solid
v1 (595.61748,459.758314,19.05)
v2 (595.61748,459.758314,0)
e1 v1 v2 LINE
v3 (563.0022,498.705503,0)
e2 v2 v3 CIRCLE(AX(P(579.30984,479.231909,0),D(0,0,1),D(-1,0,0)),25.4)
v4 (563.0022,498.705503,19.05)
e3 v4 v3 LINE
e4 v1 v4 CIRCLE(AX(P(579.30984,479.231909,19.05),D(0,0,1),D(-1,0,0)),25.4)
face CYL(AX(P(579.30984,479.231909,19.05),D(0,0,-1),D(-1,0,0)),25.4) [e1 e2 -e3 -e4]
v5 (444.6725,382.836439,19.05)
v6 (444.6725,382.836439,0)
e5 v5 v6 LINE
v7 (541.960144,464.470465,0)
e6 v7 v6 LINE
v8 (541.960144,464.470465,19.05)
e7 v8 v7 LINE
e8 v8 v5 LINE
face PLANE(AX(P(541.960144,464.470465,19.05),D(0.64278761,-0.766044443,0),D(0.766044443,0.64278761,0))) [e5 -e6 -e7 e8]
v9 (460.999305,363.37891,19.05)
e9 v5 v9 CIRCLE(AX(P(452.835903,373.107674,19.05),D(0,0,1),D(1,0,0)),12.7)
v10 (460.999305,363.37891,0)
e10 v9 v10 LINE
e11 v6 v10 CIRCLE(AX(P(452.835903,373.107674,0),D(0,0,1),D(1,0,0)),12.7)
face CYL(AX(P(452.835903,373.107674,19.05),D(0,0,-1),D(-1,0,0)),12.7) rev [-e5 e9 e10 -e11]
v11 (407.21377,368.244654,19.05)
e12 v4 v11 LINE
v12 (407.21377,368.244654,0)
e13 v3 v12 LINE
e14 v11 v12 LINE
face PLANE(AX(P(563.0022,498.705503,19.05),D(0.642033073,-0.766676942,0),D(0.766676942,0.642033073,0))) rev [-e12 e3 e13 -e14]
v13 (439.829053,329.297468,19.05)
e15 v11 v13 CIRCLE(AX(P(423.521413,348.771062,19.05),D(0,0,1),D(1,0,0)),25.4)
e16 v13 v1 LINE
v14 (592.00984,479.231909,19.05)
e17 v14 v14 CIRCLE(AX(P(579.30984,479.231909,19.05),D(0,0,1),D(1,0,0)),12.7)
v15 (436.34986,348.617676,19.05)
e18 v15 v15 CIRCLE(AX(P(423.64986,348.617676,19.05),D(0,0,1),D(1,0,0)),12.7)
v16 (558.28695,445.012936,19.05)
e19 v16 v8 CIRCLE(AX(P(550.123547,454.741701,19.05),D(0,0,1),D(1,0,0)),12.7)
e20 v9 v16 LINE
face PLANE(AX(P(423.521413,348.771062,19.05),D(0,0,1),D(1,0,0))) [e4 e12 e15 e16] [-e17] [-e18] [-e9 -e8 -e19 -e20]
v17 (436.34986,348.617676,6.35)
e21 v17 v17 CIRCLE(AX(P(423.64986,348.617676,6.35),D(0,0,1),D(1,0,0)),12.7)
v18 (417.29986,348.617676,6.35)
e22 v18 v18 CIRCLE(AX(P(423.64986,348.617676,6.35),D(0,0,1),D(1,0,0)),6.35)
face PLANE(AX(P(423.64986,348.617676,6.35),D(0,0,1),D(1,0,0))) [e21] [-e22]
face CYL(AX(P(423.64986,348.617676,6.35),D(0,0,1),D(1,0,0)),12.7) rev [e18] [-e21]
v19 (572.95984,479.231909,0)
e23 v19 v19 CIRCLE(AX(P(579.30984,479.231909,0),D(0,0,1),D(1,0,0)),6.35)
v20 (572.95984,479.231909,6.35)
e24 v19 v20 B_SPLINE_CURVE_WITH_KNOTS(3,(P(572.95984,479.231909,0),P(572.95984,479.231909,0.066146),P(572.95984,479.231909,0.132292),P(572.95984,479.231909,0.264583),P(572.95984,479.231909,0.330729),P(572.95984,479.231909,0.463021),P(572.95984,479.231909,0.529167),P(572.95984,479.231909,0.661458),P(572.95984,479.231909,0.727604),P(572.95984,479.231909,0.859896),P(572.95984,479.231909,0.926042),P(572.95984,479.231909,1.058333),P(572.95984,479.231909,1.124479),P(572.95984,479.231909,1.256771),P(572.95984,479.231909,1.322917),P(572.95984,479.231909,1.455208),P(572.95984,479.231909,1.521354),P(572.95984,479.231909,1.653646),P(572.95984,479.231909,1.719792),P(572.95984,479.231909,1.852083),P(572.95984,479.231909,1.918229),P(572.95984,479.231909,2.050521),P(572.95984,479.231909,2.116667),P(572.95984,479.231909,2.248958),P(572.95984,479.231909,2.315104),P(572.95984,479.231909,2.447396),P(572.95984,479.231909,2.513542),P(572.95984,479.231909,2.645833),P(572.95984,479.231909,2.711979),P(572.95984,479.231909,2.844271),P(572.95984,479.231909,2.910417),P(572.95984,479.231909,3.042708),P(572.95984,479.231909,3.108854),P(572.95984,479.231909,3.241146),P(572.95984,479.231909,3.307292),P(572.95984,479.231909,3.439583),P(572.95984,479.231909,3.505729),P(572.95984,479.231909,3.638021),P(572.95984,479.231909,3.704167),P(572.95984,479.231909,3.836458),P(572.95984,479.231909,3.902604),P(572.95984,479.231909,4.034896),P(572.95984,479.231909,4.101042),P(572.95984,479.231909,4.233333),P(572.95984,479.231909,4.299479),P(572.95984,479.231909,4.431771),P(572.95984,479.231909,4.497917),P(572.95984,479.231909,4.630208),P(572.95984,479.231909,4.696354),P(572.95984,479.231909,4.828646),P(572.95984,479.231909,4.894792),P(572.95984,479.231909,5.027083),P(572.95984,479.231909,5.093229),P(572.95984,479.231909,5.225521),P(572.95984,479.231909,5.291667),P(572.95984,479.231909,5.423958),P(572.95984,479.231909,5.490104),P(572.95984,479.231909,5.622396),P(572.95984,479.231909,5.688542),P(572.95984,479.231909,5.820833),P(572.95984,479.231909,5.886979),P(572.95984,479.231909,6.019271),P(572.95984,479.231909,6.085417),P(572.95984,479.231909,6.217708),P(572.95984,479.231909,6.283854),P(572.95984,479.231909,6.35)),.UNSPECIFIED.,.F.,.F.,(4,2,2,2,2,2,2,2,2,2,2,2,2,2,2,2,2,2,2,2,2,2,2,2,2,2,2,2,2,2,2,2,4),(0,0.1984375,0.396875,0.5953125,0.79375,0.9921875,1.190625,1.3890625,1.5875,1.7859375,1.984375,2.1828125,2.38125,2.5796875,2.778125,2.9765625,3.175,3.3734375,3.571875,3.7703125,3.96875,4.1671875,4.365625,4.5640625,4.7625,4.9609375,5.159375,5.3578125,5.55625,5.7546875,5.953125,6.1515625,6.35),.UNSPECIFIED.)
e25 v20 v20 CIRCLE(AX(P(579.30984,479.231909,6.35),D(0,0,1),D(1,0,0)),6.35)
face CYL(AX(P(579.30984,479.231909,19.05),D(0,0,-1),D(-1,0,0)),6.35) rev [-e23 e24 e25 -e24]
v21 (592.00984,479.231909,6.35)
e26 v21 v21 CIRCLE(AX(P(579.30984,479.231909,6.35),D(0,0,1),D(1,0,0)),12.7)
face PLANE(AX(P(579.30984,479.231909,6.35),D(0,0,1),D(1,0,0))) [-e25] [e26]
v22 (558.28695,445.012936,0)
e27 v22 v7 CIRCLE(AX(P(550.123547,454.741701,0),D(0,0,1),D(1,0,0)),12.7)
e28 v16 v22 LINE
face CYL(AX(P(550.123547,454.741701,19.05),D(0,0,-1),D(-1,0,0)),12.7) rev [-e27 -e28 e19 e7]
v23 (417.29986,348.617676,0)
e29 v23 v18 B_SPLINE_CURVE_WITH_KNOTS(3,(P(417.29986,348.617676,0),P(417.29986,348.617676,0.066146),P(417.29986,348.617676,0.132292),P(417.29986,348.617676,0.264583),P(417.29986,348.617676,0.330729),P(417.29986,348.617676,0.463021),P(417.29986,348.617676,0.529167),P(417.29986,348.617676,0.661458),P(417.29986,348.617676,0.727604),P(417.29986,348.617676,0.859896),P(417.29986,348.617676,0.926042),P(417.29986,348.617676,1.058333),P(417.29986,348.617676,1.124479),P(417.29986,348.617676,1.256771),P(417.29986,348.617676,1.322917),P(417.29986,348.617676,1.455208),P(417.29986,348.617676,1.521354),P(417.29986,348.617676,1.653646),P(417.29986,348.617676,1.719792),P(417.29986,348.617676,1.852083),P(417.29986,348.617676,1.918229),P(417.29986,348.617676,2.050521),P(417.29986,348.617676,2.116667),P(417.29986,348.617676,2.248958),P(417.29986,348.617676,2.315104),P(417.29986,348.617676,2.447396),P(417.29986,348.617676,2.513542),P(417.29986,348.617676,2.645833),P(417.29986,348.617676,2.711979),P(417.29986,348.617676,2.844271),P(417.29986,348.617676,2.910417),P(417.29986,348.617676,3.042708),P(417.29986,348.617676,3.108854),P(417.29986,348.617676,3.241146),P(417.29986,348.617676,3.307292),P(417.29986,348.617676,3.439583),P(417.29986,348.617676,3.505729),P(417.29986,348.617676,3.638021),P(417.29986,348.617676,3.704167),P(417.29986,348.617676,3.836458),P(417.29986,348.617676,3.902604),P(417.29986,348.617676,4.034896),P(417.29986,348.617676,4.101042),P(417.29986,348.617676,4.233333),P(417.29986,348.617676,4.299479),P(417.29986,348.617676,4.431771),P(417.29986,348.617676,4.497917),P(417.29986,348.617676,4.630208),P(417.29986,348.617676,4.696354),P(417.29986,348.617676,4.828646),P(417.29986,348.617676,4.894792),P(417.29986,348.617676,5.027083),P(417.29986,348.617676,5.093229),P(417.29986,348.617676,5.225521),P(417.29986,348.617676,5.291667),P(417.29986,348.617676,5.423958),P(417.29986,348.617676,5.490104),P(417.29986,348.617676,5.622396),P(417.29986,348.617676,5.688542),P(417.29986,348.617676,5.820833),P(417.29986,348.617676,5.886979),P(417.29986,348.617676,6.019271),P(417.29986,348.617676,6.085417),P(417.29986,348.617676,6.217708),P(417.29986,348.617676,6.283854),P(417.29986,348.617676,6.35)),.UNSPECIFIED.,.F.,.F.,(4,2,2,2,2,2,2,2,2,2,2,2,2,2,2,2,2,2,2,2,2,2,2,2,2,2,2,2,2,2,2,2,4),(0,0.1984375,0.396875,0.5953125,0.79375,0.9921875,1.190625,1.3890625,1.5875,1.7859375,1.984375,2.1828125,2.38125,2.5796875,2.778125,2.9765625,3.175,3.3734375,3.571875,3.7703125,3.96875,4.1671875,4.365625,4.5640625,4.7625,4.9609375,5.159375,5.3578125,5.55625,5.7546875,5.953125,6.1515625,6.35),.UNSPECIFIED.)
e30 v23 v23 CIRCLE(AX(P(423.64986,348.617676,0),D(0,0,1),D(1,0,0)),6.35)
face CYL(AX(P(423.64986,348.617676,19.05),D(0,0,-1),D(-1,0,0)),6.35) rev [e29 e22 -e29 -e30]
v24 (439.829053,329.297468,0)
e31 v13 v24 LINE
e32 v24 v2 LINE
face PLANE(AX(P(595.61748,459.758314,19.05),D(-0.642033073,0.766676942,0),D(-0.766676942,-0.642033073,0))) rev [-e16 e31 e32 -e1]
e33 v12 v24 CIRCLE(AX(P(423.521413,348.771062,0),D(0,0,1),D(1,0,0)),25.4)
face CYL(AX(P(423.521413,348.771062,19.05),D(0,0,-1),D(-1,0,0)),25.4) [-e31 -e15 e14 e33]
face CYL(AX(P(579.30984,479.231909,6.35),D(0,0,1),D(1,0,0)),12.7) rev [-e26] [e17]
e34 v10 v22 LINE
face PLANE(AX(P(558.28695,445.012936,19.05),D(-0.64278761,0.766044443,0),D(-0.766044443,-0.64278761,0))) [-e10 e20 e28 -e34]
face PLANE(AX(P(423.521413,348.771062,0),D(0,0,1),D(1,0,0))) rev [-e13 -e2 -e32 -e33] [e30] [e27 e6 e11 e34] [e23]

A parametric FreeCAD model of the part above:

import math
import FreeCAD as App
import Part
import Sketcher
Q = App.Units.Quantity

doc = App.newDocument("Part")
params = doc.addObject("Spreadsheet::Sheet", "Params")
for row, (alias, value) in enumerate([
    ("sketch1_radius", "1 in"),
    ("sketch1_diameter", "0.5 in"),
    ("sketch1_radius2", "0.5 in"),
    ("sketch1_length", "5 in"),
    ("pad1_length", "0.75 in"),
    ("sketch2_diameter", "1 in"),
    ("pocket1_length", "0.5 in"),
], start=1):
    params.set(f"A{row}", alias)
    params.set(f"B{row}", "=" + value)
    params.setAlias(f"B{row}", alias)

body = doc.addObject("PartDesign::Body", "Body")

sketch1 = body.newObject("Sketcher::SketchObject", "Sketch")
sketch1.AttachmentSupport = (doc.getObject("XY_Plane"), [""])
sketch1.MapMode = "FlatFace"
sketch1.addGeometry([
    Part.LineSegment(App.Vector(563.0022, 498.705503, 0), App.Vector(407.21377, 368.244654, 0)),
    Part.ArcOfCircle(Part.Circle(App.Vector(423.521413, 348.771062, 0), App.Vector(0, 0, 1), 25.4), math.radians(129.943597), math.radians(309.943588)),
    Part.LineSegment(App.Vector(439.829053, 329.297468, 0), App.Vector(595.61748, 459.758314, 0)),
    Part.ArcOfCircle(Part.Circle(App.Vector(579.30984, 479.231909, 0), App.Vector(0, 0, 1), 25.4), math.radians(-50.056412), math.radians(129.943588)),
    Part.Circle(App.Vector(423.64986, 348.617676, 0), App.Vector(0, 0, 1), 6.35),
    Part.ArcOfCircle(Part.Circle(App.Vector(550.123547, 454.741701, 0), App.Vector(0, 0, 1), 12.7), math.radians(-50), math.radians(130)),
    Part.LineSegment(App.Vector(558.28695, 445.012936, 0), App.Vector(460.999305, 363.37891, 0)),
    Part.ArcOfCircle(Part.Circle(App.Vector(452.835903, 373.107674, 0), App.Vector(0, 0, 1), 12.7), math.radians(130), math.radians(310)),
    Part.LineSegment(App.Vector(444.6725, 382.836439, 0), App.Vector(541.960144, 464.470465, 0)),
    Part.Circle(App.Vector(579.30984, 479.231909, 0), App.Vector(0, 0, 1), 6.35),
], False)
sketch1.addConstraint([
    Sketcher.Constraint("Tangent", 0, 2, 1, 1),
    Sketcher.Constraint("Tangent", 1, 2, 2, 1),
    Sketcher.Constraint("Tangent", 2, 2, 3, 1),
    Sketcher.Constraint("Tangent", 3, 2, 0, 1),
    Sketcher.Constraint("Tangent", 5, 1, 6, 1),
    Sketcher.Constraint("Tangent", 6, 2, 7, 2),
    Sketcher.Constraint("Tangent", 7, 1, 8, 1),
    Sketcher.Constraint("Tangent", 8, 2, 5, 2),
    Sketcher.Constraint("Coincident", 9, 3, 3, 3),
    Sketcher.Constraint("Equal", 1, 3),
    Sketcher.Constraint("Equal", 5, 7),
    Sketcher.Constraint("Equal", 4, 9),
    Sketcher.Constraint("Radius", 1, Q("1 in")),
    Sketcher.Constraint("Diameter", 4, Q("0.5 in")),
    Sketcher.Constraint("Radius", 5, Q("0.5 in")),
    Sketcher.Constraint("Distance", 6, Q("5 in")),
    Sketcher.Constraint("Angle", 6, Q("-140 deg")),
    Sketcher.Constraint("DistanceY", -1, 1, 5, 3, Q("454.741701 mm")),
    Sketcher.Constraint("DistanceX", -1, 1, 3, 2, Q("563.0022 mm")),
    Sketcher.Constraint("DistanceX", -1, 1, 7, 1, Q("444.6725 mm")),
    Sketcher.Constraint("DistanceY", 4, 3, 7, 3, Q("24.489998 mm")),
    Sketcher.Constraint("DistanceX", -1, 1, 3, 3, Q("579.30984 mm")),
    Sketcher.Constraint("DistanceY", -1, 1, 3, 3, Q("479.231909 mm")),
    Sketcher.Constraint("DistanceX", -1, 1, 4, 3, Q("423.64986 mm")),
    Sketcher.Constraint("DistanceX", -1, 1, 0, 2, Q("407.21377 mm")),
])
sketch1.setExpression("Constraints[12]", "Params.sketch1_radius")
sketch1.setExpression("Constraints[13]", "Params.sketch1_diameter")
sketch1.setExpression("Constraints[14]", "Params.sketch1_radius2")
sketch1.setExpression("Constraints[15]", "Params.sketch1_length")
pad1 = body.newObject("PartDesign::Pad", "Pad")
pad1.Profile = sketch1
pad1.setExpression("Length", "Params.pad1_length")

sketch2 = body.newObject("Sketcher::SketchObject", "Sketch001")
sketch2.AttachmentSupport = (doc.getObject("XY_Plane"), [""])
sketch2.MapMode = "FlatFace"
sketch2.AttachmentOffset = App.Placement(App.Vector(0, 0, 0.75 * 25.4), App.Rotation())
sketch2.addGeometry([
    Part.Circle(App.Vector(423.64986, 348.617676, 0), App.Vector(0, 0, 1), 12.7),
    Part.Circle(App.Vector(579.30984, 479.231909, 0), App.Vector(0, 0, 1), 12.7),
], False)
sketch2.addConstraint([
    Sketcher.Constraint("Equal", 0, 1),
    Sketcher.Constraint("Diameter", 0, Q("1 in")),
    Sketcher.Constraint("DistanceX", -1, 1, 0, 3, Q("423.64986 mm")),
    Sketcher.Constraint("DistanceX", -1, 1, 1, 3, Q("579.30984 mm")),
    Sketcher.Constraint("DistanceY", -1, 1, 1, 3, Q("479.231909 mm")),
    Sketcher.Constraint("DistanceY", -1, 1, 0, 3, Q("348.617676 mm")),
])
sketch2.setExpression("Constraints[1]", "Params.sketch2_diameter")
pocket1 = body.newObject("PartDesign::Pocket", "Pocket")
pocket1.Profile = sketch2
pocket1.setExpression("Length", "Params.pocket1_length")

doc.recompute()
